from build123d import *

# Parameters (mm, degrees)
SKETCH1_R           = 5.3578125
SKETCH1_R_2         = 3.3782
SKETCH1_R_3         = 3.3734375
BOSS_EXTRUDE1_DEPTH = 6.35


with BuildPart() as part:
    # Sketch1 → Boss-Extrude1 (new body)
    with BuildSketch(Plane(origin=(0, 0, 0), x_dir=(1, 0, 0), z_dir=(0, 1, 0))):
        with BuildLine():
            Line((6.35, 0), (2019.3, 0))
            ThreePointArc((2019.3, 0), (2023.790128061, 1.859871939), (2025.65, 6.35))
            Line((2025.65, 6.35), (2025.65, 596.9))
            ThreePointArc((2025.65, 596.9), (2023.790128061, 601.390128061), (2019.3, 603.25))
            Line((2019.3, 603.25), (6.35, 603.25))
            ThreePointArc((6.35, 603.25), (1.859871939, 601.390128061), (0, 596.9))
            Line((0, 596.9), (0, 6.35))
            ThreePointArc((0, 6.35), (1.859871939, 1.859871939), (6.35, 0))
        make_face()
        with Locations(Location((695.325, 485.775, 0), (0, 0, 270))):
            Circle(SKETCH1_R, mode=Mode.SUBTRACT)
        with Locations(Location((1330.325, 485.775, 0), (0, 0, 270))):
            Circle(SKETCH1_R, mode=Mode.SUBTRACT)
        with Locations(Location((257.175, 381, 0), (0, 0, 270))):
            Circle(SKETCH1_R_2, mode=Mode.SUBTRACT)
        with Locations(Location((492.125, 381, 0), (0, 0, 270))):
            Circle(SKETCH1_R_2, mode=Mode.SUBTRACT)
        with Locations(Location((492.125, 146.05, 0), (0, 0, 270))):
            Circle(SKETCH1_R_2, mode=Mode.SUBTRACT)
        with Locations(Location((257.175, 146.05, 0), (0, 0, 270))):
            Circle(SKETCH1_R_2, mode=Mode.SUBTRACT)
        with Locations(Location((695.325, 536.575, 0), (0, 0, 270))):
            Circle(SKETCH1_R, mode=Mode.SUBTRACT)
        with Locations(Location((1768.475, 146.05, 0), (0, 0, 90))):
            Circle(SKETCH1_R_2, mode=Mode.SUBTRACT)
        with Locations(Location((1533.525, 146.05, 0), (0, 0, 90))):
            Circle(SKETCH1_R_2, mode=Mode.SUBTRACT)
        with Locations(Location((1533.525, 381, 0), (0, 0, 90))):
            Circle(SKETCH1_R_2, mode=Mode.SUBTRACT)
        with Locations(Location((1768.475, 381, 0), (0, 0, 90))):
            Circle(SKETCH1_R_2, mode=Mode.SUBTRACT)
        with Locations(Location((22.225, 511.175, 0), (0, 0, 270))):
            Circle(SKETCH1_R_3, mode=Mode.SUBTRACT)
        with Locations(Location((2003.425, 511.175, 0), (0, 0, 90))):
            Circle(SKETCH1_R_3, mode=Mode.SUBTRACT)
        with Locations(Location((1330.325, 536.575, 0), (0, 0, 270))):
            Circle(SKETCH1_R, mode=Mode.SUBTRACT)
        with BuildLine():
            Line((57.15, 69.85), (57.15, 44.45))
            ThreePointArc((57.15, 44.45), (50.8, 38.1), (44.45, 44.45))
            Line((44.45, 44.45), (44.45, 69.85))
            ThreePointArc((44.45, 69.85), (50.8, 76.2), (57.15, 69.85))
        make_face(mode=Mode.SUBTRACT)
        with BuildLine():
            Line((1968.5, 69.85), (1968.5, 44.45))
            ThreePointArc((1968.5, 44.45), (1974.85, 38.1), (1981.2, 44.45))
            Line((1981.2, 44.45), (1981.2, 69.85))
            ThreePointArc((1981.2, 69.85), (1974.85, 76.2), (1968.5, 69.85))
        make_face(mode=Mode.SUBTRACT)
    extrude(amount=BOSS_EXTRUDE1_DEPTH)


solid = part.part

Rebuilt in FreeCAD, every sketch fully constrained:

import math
import FreeCAD as App
import Part
import Sketcher

V = App.Vector
Q = App.Units.Quantity

doc = App.newDocument("Part")
body = doc.addObject("PartDesign::Body", "Body")

# Sketch on XZ plane
sketch1 = body.newObject("Sketcher::SketchObject", "Sketch")
sketch1.AttachmentSupport = (doc.getObject("XZ_Plane"), [""])
sketch1.MapMode = "FlatFace"
sketch1.addGeometry([
    Part.LineSegment(V(6.3, 0, 0), V(2019.3, 0, 0)),  # 0
    Part.ArcOfCircle(Part.Circle(V(2019.3, -6.3, 0), V(0, 0, 1), 6.3), math.radians(0), math.radians(90)),  # 1
    Part.LineSegment(V(2025.7, -6.3, 0), V(2025.7, -596.9, 0)),  # 2
    Part.ArcOfCircle(Part.Circle(V(2019.3, -596.9, 0), V(0, 0, 1), 6.3), math.radians(-90), math.radians(0)),  # 3
    Part.LineSegment(V(2019.3, -603.2, 0), V(6.3, -603.2, 0)),  # 4
    Part.ArcOfCircle(Part.Circle(V(6.3, -596.9, 0), V(0, 0, 1), 6.3), math.radians(180), math.radians(270)),  # 5
    Part.LineSegment(V(0, -596.9, 0), V(0, -6.3, 0)),  # 6
    Part.ArcOfCircle(Part.Circle(V(6.3, -6.3, 0), V(0, 0, 1), 6.3), math.radians(90), math.radians(180)),  # 7
    Part.ArcOfCircle(Part.Circle(V(50.8, -69.8, 0), V(0, 0, 1), 6.3), math.radians(180), math.radians(360)),  # 8
    Part.LineSegment(V(57.1, -69.8, 0), V(57.1, -44.5, 0)),  # 9
    Part.ArcOfCircle(Part.Circle(V(50.8, -44.5, 0), V(0, 0, 1), 6.3), math.radians(0), math.radians(180)),  # 10
    Part.LineSegment(V(44.5, -44.5, 0), V(44.5, -69.8, 0)),  # 11
    Part.Circle(V(257.2, -146.1, 0), V(0, 0, 1), 3.4),  # 12
    Part.Circle(V(492.1, -146.1, 0), V(0, 0, 1), 3.4),  # 13
    Part.LineSegment(V(1968.5, -44.5, 0), V(1968.5, -69.8, 0)),  # 14
    Part.ArcOfCircle(Part.Circle(V(1974.8, -69.8, 0), V(0, 0, 1), 6.3), math.radians(180), math.radians(360)),  # 15
    Part.LineSegment(V(1981.2, -69.8, 0), V(1981.2, -44.5, 0)),  # 16
    Part.ArcOfCircle(Part.Circle(V(1974.8, -44.5, 0), V(0, 0, 1), 6.3), math.radians(0), math.radians(180)),  # 17
    Part.Circle(V(1533.5, -146.1, 0), V(0, 0, 1), 3.4),  # 18
    Part.Circle(V(1768.5, -146.1, 0), V(0, 0, 1), 3.4),  # 19
    Part.Circle(V(257.2, -381, 0), V(0, 0, 1), 3.4),  # 20
    Part.Circle(V(492.1, -381, 0), V(0, 0, 1), 3.4),  # 21
    Part.Circle(V(22.2, -511.2, 0), V(0, 0, 1), 3.4),  # 22
    Part.Circle(V(695.3, -485.8, 0), V(0, 0, 1), 5.4),  # 23
    Part.Circle(V(695.3, -536.6, 0), V(0, 0, 1), 5.4),  # 24
    Part.Circle(V(1533.5, -381, 0), V(0, 0, 1), 3.4),  # 25
    Part.Circle(V(1768.5, -381, 0), V(0, 0, 1), 3.4),  # 26
    Part.Circle(V(1330.3, -485.8, 0), V(0, 0, 1), 5.4),  # 27
    Part.Circle(V(1330.3, -536.6, 0), V(0, 0, 1), 5.4),  # 28
    Part.Circle(V(2003.4, -511.2, 0), V(0, 0, 1), 3.4),  # 29
], False)
sketch1.addConstraint([
    Sketcher.Constraint("Tangent", 0, 2, 1, 2),
    Sketcher.Constraint("Tangent", 1, 1, 2, 1),
    Sketcher.Constraint("Tangent", 2, 2, 3, 2),
    Sketcher.Constraint("Tangent", 3, 1, 4, 1),
    Sketcher.Constraint("Tangent", 4, 2, 5, 2),
    Sketcher.Constraint("Tangent", 5, 1, 6, 1),
    Sketcher.Constraint("Tangent", 6, 2, 7, 2),
    Sketcher.Constraint("Tangent", 7, 1, 0, 1),
    Sketcher.Constraint("Tangent", 8, 2, 9, 1),
    Sketcher.Constraint("Tangent", 9, 2, 10, 1),
    Sketcher.Constraint("Tangent", 10, 2, 11, 1),
    Sketcher.Constraint("Tangent", 11, 2, 8, 1),
    Sketcher.Constraint("Tangent", 14, 2, 15, 1),
    Sketcher.Constraint("Tangent", 15, 2, 16, 1),
    Sketcher.Constraint("Tangent", 16, 2, 17, 1),
    Sketcher.Constraint("Tangent", 17, 2, 14, 1),
    Sketcher.Constraint("Horizontal", 0),
    Sketcher.Constraint("Vertical", 2),
    Sketcher.Constraint("Horizontal", 4),
    Sketcher.Constraint("Vertical", 6),
    Sketcher.Constraint("Vertical", 9),
    Sketcher.Constraint("Vertical", 11),
    Sketcher.Constraint("Vertical", 14),
    Sketcher.Constraint("Vertical", 16),
    Sketcher.Constraint("Equal", 1, 3),
    Sketcher.Constraint("Equal", 3, 5),
    Sketcher.Constraint("Equal", 5, 7),
    Sketcher.Constraint("Equal", 7, 8),
    Sketcher.Constraint("Equal", 12, 13),
    Sketcher.Constraint("Equal", 10, 15),
    Sketcher.Constraint("Equal", 13, 18),
    Sketcher.Constraint("Equal", 18, 19),
    Sketcher.Constraint("Equal", 19, 20),
    Sketcher.Constraint("Equal", 20, 21),
    Sketcher.Constraint("Equal", 23, 24),
    Sketcher.Constraint("Equal", 21, 25),
    Sketcher.Constraint("Equal", 25, 26),
    Sketcher.Constraint("Equal", 24, 27),
    Sketcher.Constraint("Equal", 27, 28),
    Sketcher.Constraint("Equal", 22, 29),
    Sketcher.Constraint("PointOnObject", 0, 2, -1),
    Sketcher.Constraint("PointOnObject", 5, 1, -2),
    Sketcher.Constraint("Horizontal", 12, 3, 13, 3),
    Sketcher.Constraint("Horizontal", 8, 3, 15, 3),
    Sketcher.Constraint("Horizontal", 10, 3, 17, 3),
    Sketcher.Constraint("Horizontal", 13, 3, 18, 3),
    Sketcher.Constraint("Horizontal", 18, 3, 19, 3),
    Sketcher.Constraint("Horizontal", 20, 3, 21, 3),
    Sketcher.Constraint("Horizontal", 21, 3, 25, 3),
    Sketcher.Constraint("Horizontal", 25, 3, 26, 3),
    Sketcher.Constraint("Horizontal", 23, 3, 27, 3),
    Sketcher.Constraint("Horizontal", 24, 3, 28, 3),
    Sketcher.Constraint("Horizontal", 22, 3, 29, 3),
    Sketcher.Constraint("Vertical", 12, 3, 20, 3),
    Sketcher.Constraint("Vertical", 13, 3, 21, 3),
    Sketcher.Constraint("Vertical", 23, 3, 24, 3),
    Sketcher.Constraint("Vertical", 18, 3, 25, 3),
    Sketcher.Constraint("Vertical", 19, 3, 26, 3),
    Sketcher.Constraint("Vertical", 27, 3, 28, 3),
    Sketcher.Constraint("DistanceY", 9, 1, 9, 2, Q("1 in")),
    Sketcher.Constraint("Radius", 1, Q("0.25 in")),
    Sketcher.Constraint("Diameter", 12, Q("0.266 in")),
    Sketcher.Constraint("Diameter", 22, Q("0.265625 in")),
    Sketcher.Constraint("Diameter", 23, Q("0.421875 in")),
    Sketcher.Constraint("DistanceX", -1, 1, 8, 3, Q("2 in")),
    Sketcher.Constraint("DistanceY", 20, 3, -1, 1, Q("15 in")),
    Sketcher.Constraint("DistanceX", -1, 1, 15, 2, Q("78 in")),
    Sketcher.Constraint("DistanceY", 12, 3, 8, 3, Q("3 in")),
    Sketcher.Constraint("DistanceX", 13, 3, 18, 3, Q("41 in")),
    Sketcher.Constraint("DistanceX", 21, 3, 23, 3, Q("8 in")),
    Sketcher.Constraint("DistanceY", 22, 3, 23, 3, Q("1 in")),
    Sketcher.Constraint("DistanceY", 24, 3, 23, 3, Q("2 in")),
    Sketcher.Constraint("DistanceX", 27, 3, 25, 3, Q("8 in")),
    Sketcher.Constraint("DistanceX", 17, 3, 1, 1, Q("2 in")),
    Sketcher.Constraint("DistanceY", 3, 1, 19, 3, Q("18 in")),
    Sketcher.Constraint("DistanceY", 2, 2, 2, 1, Q("23.25 in")),
    Sketcher.Constraint("DistanceX", 22, 3, 23, 3, Q("26.5 in")),
    Sketcher.Constraint("DistanceX", 12, 3, 13, 3, Q("9.25 in")),
    Sketcher.Constraint("DistanceX", 18, 3, 19, 3, Q("9.25 in")),
    Sketcher.Constraint("DistanceX", 26, 3, 29, 3, Q("9.25 in")),
    Sketcher.Constraint("DistanceX", -1, 1, 12, 3, Q("10.125 in")),
    Sketcher.Constraint("DistanceY", 22, 3, -1, 1, Q("20.125 in")),
])
pad1 = body.newObject("PartDesign::Pad", "Pad")
pad1.Profile = sketch1
pad1.Length = Q("0.25 in")
pad1.Reversed = True

doc.recompute()
